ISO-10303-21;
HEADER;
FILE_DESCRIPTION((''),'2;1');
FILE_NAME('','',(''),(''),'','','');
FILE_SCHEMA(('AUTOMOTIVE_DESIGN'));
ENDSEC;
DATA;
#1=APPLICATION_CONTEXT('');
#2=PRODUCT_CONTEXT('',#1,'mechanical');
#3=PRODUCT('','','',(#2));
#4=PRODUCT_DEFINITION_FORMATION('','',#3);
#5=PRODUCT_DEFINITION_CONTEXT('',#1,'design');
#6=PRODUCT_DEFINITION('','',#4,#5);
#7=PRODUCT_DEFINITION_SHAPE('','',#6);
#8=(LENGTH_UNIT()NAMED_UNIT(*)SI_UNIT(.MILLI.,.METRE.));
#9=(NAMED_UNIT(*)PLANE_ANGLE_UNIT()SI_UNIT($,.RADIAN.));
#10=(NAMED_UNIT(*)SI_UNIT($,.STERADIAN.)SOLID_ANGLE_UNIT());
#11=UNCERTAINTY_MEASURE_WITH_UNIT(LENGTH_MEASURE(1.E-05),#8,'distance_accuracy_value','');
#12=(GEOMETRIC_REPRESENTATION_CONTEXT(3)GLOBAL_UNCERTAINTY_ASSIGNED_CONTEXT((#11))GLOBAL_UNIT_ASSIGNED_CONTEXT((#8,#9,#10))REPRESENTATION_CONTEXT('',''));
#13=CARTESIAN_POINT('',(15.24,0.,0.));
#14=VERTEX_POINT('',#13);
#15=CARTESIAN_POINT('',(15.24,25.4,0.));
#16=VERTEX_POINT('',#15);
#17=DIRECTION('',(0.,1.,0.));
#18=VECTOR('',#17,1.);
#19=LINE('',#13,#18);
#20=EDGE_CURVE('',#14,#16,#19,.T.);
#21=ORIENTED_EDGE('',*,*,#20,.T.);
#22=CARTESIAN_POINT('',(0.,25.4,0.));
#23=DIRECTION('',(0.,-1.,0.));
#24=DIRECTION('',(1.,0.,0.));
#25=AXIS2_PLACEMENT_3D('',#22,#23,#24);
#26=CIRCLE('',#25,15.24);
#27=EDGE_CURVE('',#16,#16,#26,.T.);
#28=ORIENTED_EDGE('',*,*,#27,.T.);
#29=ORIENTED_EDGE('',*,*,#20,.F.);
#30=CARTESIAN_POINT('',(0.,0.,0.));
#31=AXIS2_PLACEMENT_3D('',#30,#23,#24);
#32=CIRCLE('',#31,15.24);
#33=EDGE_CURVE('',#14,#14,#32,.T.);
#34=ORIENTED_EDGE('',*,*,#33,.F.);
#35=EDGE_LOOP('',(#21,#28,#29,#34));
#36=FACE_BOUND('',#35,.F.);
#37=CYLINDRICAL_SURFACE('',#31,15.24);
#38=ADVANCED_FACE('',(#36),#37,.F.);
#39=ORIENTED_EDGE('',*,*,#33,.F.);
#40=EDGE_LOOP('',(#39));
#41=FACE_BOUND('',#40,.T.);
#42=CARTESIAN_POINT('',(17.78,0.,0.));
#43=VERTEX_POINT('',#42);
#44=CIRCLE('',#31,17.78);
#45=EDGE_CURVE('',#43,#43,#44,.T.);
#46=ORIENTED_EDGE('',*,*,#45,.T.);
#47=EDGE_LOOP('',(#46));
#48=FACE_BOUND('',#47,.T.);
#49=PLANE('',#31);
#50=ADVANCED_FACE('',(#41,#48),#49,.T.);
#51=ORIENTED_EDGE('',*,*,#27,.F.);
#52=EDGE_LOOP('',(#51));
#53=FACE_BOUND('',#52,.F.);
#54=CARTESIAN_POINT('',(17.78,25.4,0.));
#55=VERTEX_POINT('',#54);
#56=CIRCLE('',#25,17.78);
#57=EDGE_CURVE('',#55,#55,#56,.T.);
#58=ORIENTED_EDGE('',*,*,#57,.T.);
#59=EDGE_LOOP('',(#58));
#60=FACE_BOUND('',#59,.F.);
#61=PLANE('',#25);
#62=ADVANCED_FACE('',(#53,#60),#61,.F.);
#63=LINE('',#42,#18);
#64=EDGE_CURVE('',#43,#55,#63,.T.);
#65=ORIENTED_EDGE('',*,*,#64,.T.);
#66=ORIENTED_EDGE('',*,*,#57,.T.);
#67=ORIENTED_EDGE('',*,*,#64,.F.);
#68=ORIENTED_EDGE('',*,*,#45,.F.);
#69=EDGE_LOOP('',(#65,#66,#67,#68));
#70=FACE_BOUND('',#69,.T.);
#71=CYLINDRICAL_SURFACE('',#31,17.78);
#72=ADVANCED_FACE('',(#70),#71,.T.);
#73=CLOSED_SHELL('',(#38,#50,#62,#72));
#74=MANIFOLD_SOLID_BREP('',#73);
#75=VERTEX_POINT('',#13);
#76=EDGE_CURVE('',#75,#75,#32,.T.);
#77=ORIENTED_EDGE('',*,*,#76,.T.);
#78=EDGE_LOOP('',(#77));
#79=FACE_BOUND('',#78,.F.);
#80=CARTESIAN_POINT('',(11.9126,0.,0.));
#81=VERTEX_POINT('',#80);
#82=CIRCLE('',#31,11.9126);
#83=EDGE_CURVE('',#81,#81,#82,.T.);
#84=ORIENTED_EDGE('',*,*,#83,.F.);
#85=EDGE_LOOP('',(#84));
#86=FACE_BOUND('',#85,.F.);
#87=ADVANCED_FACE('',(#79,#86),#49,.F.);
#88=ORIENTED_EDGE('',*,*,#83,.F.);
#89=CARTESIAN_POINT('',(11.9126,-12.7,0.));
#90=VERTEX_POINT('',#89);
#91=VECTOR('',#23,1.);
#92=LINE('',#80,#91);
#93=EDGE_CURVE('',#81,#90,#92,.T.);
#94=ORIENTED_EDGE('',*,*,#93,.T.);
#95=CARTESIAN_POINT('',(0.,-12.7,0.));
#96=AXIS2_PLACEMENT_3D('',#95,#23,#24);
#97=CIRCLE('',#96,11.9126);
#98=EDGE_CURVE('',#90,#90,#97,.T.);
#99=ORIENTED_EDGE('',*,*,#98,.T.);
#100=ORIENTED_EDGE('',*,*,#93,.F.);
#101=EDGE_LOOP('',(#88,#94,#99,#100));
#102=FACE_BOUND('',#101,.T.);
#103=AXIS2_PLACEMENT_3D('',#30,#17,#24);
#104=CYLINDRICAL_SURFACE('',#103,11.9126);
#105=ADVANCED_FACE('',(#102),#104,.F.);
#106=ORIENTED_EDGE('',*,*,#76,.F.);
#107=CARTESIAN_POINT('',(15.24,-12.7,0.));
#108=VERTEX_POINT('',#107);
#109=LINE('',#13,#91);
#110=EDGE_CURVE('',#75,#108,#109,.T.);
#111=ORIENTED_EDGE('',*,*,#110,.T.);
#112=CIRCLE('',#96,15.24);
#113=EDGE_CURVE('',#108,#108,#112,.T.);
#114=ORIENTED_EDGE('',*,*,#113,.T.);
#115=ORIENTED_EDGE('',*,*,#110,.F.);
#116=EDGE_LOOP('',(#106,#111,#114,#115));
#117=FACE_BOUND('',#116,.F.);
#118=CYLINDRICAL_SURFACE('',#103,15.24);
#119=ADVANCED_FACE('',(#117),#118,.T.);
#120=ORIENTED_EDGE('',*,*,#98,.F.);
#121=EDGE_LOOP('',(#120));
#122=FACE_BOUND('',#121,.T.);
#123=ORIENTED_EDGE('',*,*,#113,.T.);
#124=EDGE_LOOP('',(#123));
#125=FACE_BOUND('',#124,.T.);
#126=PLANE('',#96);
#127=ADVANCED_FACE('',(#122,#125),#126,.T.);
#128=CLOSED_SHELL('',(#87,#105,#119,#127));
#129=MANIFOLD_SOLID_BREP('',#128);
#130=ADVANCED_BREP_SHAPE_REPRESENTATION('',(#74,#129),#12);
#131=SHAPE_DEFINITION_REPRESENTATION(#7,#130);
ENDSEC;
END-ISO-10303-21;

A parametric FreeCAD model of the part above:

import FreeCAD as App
import Part
import Sketcher

V = App.Vector
Q = App.Units.Quantity

doc = App.newDocument("Part")
body = doc.addObject("PartDesign::Body", "Body")

sketch1 = body.newObject("Sketcher::SketchObject", "Sketch")
sketch1.AttachmentSupport = (doc.getObject("XZ_Plane"), [""])
sketch1.MapMode = "FlatFace"
sketch1.addGeometry([
    Part.Circle(V(0, 0, 0), V(0, 0, 1), 15),
    Part.Circle(V(0, 0, 0), V(0, 0, 1), 12),
], False)
sketch1.addConstraint([
    Sketcher.Constraint("Coincident", 0, 3, -1, 1),
    Sketcher.Constraint("Coincident", 1, 3, -1, 1),
    Sketcher.Constraint("Diameter", 0, Q("1.2 in")),
    Sketcher.Constraint("Diameter", 1, Q("0.938 in")),
])
pad1 = body.newObject("PartDesign::Pad", "Pad")
pad1.Profile = sketch1
pad1.Length = Q("0.5 in")
body2 = doc.addObject("PartDesign::Body", "Body001")

sketch2 = body2.newObject("Sketcher::SketchObject", "Sketch001")
sketch2.AttachmentSupport = (doc.getObject("XZ_Plane001"), [""])
sketch2.MapMode = "FlatFace"
sketch2.addGeometry([
    Part.Circle(V(0, 0, 0), V(0, 0, 1), 18),
    Part.Circle(V(0, 0, 0), V(0, 0, 1), 15),
], False)
sketch2.addConstraint([
    Sketcher.Constraint("Coincident", 0, 3, -1, 1),
    Sketcher.Constraint("Coincident", 1, 3, -1, 1),
    Sketcher.Constraint("Diameter", 0, Q("1.4 in")),
    Sketcher.Constraint("Diameter", 1, Q("1.2 in")),
])
pad2 = body2.newObject("PartDesign::Pad", "Pad001")
pad2.Profile = sketch2
pad2.Length = Q("1 in")
pad2.Reversed = True

doc.recompute()
